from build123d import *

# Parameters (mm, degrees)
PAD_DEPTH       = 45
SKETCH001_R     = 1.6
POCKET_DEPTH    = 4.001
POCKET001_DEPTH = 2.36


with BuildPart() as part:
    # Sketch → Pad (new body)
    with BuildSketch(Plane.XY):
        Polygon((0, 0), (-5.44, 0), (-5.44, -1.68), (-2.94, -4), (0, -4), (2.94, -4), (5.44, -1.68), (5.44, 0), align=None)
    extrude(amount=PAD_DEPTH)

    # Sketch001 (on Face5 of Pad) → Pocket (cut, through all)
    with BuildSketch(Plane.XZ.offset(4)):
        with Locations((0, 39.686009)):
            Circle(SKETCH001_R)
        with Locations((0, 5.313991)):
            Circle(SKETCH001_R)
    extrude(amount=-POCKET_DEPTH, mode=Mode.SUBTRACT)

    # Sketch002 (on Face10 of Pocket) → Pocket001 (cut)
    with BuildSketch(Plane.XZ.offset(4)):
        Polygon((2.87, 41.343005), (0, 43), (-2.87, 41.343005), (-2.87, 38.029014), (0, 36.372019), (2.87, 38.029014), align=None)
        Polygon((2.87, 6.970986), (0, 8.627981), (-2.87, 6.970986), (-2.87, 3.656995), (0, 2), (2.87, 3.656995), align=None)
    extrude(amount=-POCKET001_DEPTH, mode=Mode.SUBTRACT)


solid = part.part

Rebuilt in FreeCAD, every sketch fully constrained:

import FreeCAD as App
import Part
import Sketcher
from FreeCAD import Vector
Q = App.Units.Quantity

doc = App.newDocument("Part")
params = doc.addObject("Spreadsheet::Sheet", "Params")
for row, (alias, value) in enumerate([
    ("sketch1_width", "5.88 mm"),
    ("sketch1_width2", "10.88 mm"),
    ("sketch1_height", "1.68 mm"),
    ("pad1_length", "45 mm"),
    ("sketch2_diameter", "3.2 mm"),
    ("pocket2_length", "2.36 mm"),
], start=1):
    params.set(f"A{row}", alias)
    params.set(f"B{row}", "=" + value)
    params.setAlias(f"B{row}", alias)

body = doc.addObject("PartDesign::Body", "Body")

# Sketch on XY plane
sketch1 = body.newObject("Sketcher::SketchObject", "Sketch")
sketch1.AttachmentSupport = (doc.getObject("XY_Plane"), [""])
sketch1.MapMode = "FlatFace"
sketch1.addGeometry([
    Part.LineSegment(Vector(-5.4, 0, 0), Vector(-5.4, -1.7, 0)),  # 0
    Part.LineSegment(Vector(-5.4, -1.7, 0), Vector(-2.9, -4, 0)),  # 1
    Part.LineSegment(Vector(-2.9, -4, 0), Vector(2.9, -4, 0)),  # 2
    Part.LineSegment(Vector(2.9, -4, 0), Vector(5.4, -1.7, 0)),  # 3
    Part.LineSegment(Vector(5.4, -1.7, 0), Vector(5.4, 0, 0)),  # 4
    Part.LineSegment(Vector(5.4, 0, 0), Vector(-5.4, 0, 0)),  # 5
], False)
sketch1.addConstraint([
    Sketcher.Constraint("Coincident", 0, 2, 1, 1),
    Sketcher.Constraint("Coincident", 1, 2, 2, 1),
    Sketcher.Constraint("Coincident", 2, 2, 3, 1),
    Sketcher.Constraint("Coincident", 3, 2, 4, 1),
    Sketcher.Constraint("Coincident", 4, 2, 5, 1),
    Sketcher.Constraint("Coincident", 5, 2, 0, 1),
    Sketcher.Constraint("Vertical", 0),
    Sketcher.Constraint("Horizontal", 2),
    Sketcher.Constraint("Vertical", 4),
    Sketcher.Constraint("Horizontal", 5),
    Sketcher.Constraint("Symmetric", 4, 2, 5, 2, -1, 1),
    Sketcher.Constraint("Horizontal", 0, 2, 3, 2),
    Sketcher.Constraint("Equal", 1, 3),
    Sketcher.Constraint("DistanceY", 1, 2, -1, 1, Q("4 mm")),
    Sketcher.Constraint("DistanceX", 2, 1, 2, 2, Q("5.88 mm")),
    Sketcher.Constraint("DistanceX", 5, 2, 5, 1, Q("10.88 mm")),
    Sketcher.Constraint("DistanceY", 0, 2, 0, 1, Q("1.68 mm")),
])
sketch1.setExpression("Constraints[14]", "Params.sketch1_width")
sketch1.setExpression("Constraints[15]", "Params.sketch1_width2")
sketch1.setExpression("Constraints[16]", "Params.sketch1_height")
pad1 = body.newObject("PartDesign::Pad", "Pad")
pad1.Profile = sketch1
pad1.setExpression("Length", "Params.pad1_length")

# Sketch on XZ plane
sketch2 = body.newObject("Sketcher::SketchObject", "Sketch001")
sketch2.AttachmentSupport = (doc.getObject("XZ_Plane"), [""])
sketch2.MapMode = "FlatFace"
sketch2.AttachmentOffset = App.Placement(Vector(0, 0, 4), App.Rotation())
sketch2.addGeometry([
    Part.Circle(Vector(0, 39.7, 0), Vector(0, 0, 1), 1.6),
    Part.Circle(Vector(0, 5.3, 0), Vector(0, 0, 1), 1.6),
], False)
sketch2.addConstraint([
    Sketcher.Constraint("Equal", 0, 1),
    Sketcher.Constraint("PointOnObject", 0, 3, -2),
    Sketcher.Constraint("PointOnObject", 1, 3, -2),
    Sketcher.Constraint("Diameter", 0, Q("3.2 mm")),
    Sketcher.Constraint("DistanceY", -1, 1, 0, 3, Q("39.686009 mm")),
    Sketcher.Constraint("DistanceY", -1, 1, 1, 3, Q("5.313991 mm")),
])
sketch2.setExpression("Constraints[3]", "Params.sketch2_diameter")
pocket1 = body.newObject("PartDesign::Pocket", "Pocket")
pocket1.Profile = sketch2
pocket1.Type = "ThroughAll"

# Sketch on XZ plane
sketch3 = body.newObject("Sketcher::SketchObject", "Sketch002")
sketch3.AttachmentSupport = (doc.getObject("XZ_Plane"), [""])
sketch3.MapMode = "FlatFace"
sketch3.AttachmentOffset = App.Placement(Vector(0, 0, 4), App.Rotation())
sketch3.addGeometry([
    Part.LineSegment(Vector(2.9, 41.3, 0), Vector(0, 43, 0)),  # 0
    Part.LineSegment(Vector(0, 43, 0), Vector(-2.9, 41.3, 0)),  # 1
    Part.LineSegment(Vector(-2.9, 41.3, 0), Vector(-2.9, 38, 0)),  # 2
    Part.LineSegment(Vector(-2.9, 38, 0), Vector(0, 36.4, 0)),  # 3
    Part.LineSegment(Vector(0, 36.4, 0), Vector(2.9, 38, 0)),  # 4
    Part.LineSegment(Vector(2.9, 38, 0), Vector(2.9, 41.3, 0)),  # 5
    Part.LineSegment(Vector(2.9, 7, 0), Vector(0, 8.6, 0)),  # 6
    Part.LineSegment(Vector(0, 8.6, 0), Vector(-2.9, 7, 0)),  # 7
    Part.LineSegment(Vector(-2.9, 7, 0), Vector(-2.9, 3.7, 0)),  # 8
    Part.LineSegment(Vector(-2.9, 3.7, 0), Vector(0, 2, 0)),  # 9
    Part.LineSegment(Vector(0, 2, 0), Vector(2.9, 3.7, 0)),  # 10
    Part.LineSegment(Vector(2.9, 3.7, 0), Vector(2.9, 7, 0)),  # 11
], False)
sketch3.addConstraint([
    Sketcher.Constraint("Coincident", 0, 2, 1, 1),
    Sketcher.Constraint("Coincident", 1, 2, 2, 1),
    Sketcher.Constraint("Coincident", 2, 2, 3, 1),
    Sketcher.Constraint("Coincident", 3, 2, 4, 1),
    Sketcher.Constraint("Coincident", 4, 2, 5, 1),
    Sketcher.Constraint("Coincident", 5, 2, 0, 1),
    Sketcher.Constraint("Coincident", 6, 2, 7, 1),
    Sketcher.Constraint("Coincident", 7, 2, 8, 1),
    Sketcher.Constraint("Coincident", 8, 2, 9, 1),
    Sketcher.Constraint("Coincident", 9, 2, 10, 1),
    Sketcher.Constraint("Coincident", 10, 2, 11, 1),
    Sketcher.Constraint("Coincident", 11, 2, 6, 1),
    Sketcher.Constraint("Vertical", 2),
    Sketcher.Constraint("Vertical", 5),
    Sketcher.Constraint("Vertical", 8),
    Sketcher.Constraint("Vertical", 11),
    Sketcher.Constraint("Symmetric", 2, 2, 4, 2, -2),
    Sketcher.Constraint("Symmetric", 8, 2, 10, 2, -2),
    Sketcher.Constraint("PointOnObject", 0, 2, -2),
    Sketcher.Constraint("PointOnObject", 3, 2, -2),
    Sketcher.Constraint("PointOnObject", 6, 2, -2),
    Sketcher.Constraint("PointOnObject", 9, 2, -2),
    Sketcher.Constraint("Parallel", 0, 3),
    Sketcher.Constraint("Parallel", 1, 4),
    Sketcher.Constraint("Parallel", 3, 6),
    Sketcher.Constraint("Parallel", 4, 7),
    Sketcher.Constraint("Parallel", 6, 9),
    Sketcher.Constraint("Vertical", 2, 2, 7, 2),
    Sketcher.Constraint("Equal", 5, 8),
    Sketcher.Constraint("Angle", 0, Q("150.000004 deg")),
    Sketcher.Constraint("DistanceY", -1, 1, 0, 2, Q("43 mm")),
    Sketcher.Constraint("DistanceY", -1, 1, 9, 2, Q("2 mm")),
    Sketcher.Constraint("DistanceX", 1, 2, -1, 1, Q("2.87 mm")),
    Sketcher.Constraint("DistanceY", 2, 2, 2, 1, Q("3.313991 mm")),
])
pocket2 = body.newObject("PartDesign::Pocket", "Pocket001")
pocket2.Profile = sketch3
pocket2.setExpression("Length", "Params.pocket2_length")

doc.recompute()
